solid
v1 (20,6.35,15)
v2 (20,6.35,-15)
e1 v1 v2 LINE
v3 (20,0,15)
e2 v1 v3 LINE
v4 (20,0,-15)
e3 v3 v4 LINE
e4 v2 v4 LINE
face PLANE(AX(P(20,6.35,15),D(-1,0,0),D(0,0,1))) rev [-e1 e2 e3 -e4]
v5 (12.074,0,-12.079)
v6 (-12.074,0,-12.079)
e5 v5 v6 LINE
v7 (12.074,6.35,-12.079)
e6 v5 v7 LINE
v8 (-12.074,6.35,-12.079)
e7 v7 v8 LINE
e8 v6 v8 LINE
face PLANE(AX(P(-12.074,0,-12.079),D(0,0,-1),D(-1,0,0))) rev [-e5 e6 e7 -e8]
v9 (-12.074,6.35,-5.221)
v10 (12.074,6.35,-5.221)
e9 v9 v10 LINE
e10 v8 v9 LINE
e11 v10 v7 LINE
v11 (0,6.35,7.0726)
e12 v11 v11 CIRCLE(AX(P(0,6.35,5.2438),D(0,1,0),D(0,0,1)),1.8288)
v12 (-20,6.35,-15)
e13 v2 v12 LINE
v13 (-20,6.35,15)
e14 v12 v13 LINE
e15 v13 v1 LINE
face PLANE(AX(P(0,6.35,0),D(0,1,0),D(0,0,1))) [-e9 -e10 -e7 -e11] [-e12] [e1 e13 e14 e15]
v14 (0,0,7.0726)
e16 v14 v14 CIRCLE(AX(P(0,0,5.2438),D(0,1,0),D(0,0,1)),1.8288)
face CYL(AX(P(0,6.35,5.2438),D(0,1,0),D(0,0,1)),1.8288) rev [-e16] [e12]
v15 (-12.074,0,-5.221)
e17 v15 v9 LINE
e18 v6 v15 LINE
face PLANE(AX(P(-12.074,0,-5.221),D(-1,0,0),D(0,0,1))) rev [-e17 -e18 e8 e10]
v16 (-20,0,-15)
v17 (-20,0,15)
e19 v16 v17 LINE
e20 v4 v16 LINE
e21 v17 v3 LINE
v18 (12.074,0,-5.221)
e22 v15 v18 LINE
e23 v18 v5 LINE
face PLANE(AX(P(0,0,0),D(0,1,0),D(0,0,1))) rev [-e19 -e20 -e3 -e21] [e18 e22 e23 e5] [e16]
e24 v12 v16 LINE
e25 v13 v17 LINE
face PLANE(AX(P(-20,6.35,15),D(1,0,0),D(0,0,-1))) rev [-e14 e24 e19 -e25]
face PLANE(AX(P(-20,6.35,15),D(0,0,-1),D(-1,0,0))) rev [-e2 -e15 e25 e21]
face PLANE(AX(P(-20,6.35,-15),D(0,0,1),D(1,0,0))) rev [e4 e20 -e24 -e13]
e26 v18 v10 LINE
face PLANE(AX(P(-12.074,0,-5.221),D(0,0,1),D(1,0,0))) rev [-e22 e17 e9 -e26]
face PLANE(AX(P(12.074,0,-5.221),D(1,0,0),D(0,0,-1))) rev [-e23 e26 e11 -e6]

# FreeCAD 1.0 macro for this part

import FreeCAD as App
import Part
import Sketcher

V = App.Vector
Q = App.Units.Quantity


def add_polygon(sketch, points):
    """Adds a closed chain of lines whose ends are joined by coincident constraints."""
    first, n = sketch.GeometryCount, len(points)
    for a, b in zip(points, points[1:] + points[:1]):
        sketch.addGeometry(Part.LineSegment(App.Vector(*a, 0), App.Vector(*b, 0)), False)
    for i in range(n):
        sketch.addConstraint(Sketcher.Constraint("Coincident", first + i, 2, first + (i + 1) % n, 1))

doc = App.newDocument("Part")
body = doc.addObject("PartDesign::Body", "Body")

sketch1 = body.newObject("Sketcher::SketchObject", "Sketch")
sketch1.AttachmentSupport = (doc.getObject("XZ_Plane"), [""])
sketch1.MapMode = "FlatFace"
add_polygon(sketch1, [(-20, -15), (-20, 15), (20, 15), (20, -15)])
sketch1.addConstraint([
    Sketcher.Constraint("Vertical", 0),
    Sketcher.Constraint("Horizontal", 1),
    Sketcher.Constraint("Vertical", 2),
    Sketcher.Constraint("Horizontal", 3),
    Sketcher.Constraint("Symmetric", 0, 2, 2, 2, -1, 1),
    Sketcher.Constraint("DistanceX", 1, 1, 1, 2, Q("40 mm")),
    Sketcher.Constraint("DistanceY", 0, 1, 0, 2, Q("30 mm")),
])
pad1 = body.newObject("PartDesign::Pad", "Pad")
pad1.Profile = sketch1
pad1.Length = Q("0.25 in")
pad1.Reversed = True

sketch2 = body.newObject("Sketcher::SketchObject", "Sketch001")
sketch2.AttachmentSupport = (doc.getObject("XZ_Plane"), [""])
sketch2.MapMode = "FlatFace"
sketch2.AttachmentOffset = App.Placement(V(0, 0, -0.25 * 25.4), App.Rotation())
add_polygon(sketch2, [(-12, -12), (-12, -5), (12, -5), (12, -12)])
sketch2.addConstraint([
    Sketcher.Constraint("Vertical", 0),
    Sketcher.Constraint("Horizontal", 1),
    Sketcher.Constraint("Vertical", 2),
    Sketcher.Constraint("Horizontal", 3),
    Sketcher.Constraint("DistanceY", 0, 1, 0, 2, Q("0.27 in")),
    Sketcher.Constraint("DistanceX", 1, 1, 1, 2, Q("24.148 mm")),
    Sketcher.Constraint("DistanceX", 0, 2, -1, 1, Q("12.074 mm")),
    Sketcher.Constraint("DistanceY", 0, 2, -1, 1, Q("5.221 mm")),
])
pocket1 = body.newObject("PartDesign::Pocket", "Pocket")
pocket1.Profile = sketch2
pocket1.Type = "ThroughAll"
pocket1.Reversed = True

sketch3 = body.newObject("Sketcher::SketchObject", "Sketch002")
sketch3.AttachmentSupport = (doc.getObject("XZ_Plane"), [""])
sketch3.MapMode = "FlatFace"
sketch3.AttachmentOffset = App.Placement(V(0, 0, -0.25 * 25.4), App.Rotation())
sketch3.addGeometry(Part.Circle(V(0, 5.2, 0), V(0, 0, 1), 1.8), False)
sketch3.addConstraint([
    Sketcher.Constraint("PointOnObject", 0, 3, -2),
    Sketcher.Constraint("Diameter", 0, Q("0.144 in")),
    Sketcher.Constraint("DistanceY", -1, 1, 0, 3, Q("5.2438 mm")),
])
doc.recompute()
hole = body.newObject("PartDesign::Hole", "Hole")
hole.Profile = sketch3
hole.ThreadType = "None"
hole.Diameter = Q("0.144 in")
hole.DepthType = "ThroughAll"
hole.Reversed = True

doc.recompute()
